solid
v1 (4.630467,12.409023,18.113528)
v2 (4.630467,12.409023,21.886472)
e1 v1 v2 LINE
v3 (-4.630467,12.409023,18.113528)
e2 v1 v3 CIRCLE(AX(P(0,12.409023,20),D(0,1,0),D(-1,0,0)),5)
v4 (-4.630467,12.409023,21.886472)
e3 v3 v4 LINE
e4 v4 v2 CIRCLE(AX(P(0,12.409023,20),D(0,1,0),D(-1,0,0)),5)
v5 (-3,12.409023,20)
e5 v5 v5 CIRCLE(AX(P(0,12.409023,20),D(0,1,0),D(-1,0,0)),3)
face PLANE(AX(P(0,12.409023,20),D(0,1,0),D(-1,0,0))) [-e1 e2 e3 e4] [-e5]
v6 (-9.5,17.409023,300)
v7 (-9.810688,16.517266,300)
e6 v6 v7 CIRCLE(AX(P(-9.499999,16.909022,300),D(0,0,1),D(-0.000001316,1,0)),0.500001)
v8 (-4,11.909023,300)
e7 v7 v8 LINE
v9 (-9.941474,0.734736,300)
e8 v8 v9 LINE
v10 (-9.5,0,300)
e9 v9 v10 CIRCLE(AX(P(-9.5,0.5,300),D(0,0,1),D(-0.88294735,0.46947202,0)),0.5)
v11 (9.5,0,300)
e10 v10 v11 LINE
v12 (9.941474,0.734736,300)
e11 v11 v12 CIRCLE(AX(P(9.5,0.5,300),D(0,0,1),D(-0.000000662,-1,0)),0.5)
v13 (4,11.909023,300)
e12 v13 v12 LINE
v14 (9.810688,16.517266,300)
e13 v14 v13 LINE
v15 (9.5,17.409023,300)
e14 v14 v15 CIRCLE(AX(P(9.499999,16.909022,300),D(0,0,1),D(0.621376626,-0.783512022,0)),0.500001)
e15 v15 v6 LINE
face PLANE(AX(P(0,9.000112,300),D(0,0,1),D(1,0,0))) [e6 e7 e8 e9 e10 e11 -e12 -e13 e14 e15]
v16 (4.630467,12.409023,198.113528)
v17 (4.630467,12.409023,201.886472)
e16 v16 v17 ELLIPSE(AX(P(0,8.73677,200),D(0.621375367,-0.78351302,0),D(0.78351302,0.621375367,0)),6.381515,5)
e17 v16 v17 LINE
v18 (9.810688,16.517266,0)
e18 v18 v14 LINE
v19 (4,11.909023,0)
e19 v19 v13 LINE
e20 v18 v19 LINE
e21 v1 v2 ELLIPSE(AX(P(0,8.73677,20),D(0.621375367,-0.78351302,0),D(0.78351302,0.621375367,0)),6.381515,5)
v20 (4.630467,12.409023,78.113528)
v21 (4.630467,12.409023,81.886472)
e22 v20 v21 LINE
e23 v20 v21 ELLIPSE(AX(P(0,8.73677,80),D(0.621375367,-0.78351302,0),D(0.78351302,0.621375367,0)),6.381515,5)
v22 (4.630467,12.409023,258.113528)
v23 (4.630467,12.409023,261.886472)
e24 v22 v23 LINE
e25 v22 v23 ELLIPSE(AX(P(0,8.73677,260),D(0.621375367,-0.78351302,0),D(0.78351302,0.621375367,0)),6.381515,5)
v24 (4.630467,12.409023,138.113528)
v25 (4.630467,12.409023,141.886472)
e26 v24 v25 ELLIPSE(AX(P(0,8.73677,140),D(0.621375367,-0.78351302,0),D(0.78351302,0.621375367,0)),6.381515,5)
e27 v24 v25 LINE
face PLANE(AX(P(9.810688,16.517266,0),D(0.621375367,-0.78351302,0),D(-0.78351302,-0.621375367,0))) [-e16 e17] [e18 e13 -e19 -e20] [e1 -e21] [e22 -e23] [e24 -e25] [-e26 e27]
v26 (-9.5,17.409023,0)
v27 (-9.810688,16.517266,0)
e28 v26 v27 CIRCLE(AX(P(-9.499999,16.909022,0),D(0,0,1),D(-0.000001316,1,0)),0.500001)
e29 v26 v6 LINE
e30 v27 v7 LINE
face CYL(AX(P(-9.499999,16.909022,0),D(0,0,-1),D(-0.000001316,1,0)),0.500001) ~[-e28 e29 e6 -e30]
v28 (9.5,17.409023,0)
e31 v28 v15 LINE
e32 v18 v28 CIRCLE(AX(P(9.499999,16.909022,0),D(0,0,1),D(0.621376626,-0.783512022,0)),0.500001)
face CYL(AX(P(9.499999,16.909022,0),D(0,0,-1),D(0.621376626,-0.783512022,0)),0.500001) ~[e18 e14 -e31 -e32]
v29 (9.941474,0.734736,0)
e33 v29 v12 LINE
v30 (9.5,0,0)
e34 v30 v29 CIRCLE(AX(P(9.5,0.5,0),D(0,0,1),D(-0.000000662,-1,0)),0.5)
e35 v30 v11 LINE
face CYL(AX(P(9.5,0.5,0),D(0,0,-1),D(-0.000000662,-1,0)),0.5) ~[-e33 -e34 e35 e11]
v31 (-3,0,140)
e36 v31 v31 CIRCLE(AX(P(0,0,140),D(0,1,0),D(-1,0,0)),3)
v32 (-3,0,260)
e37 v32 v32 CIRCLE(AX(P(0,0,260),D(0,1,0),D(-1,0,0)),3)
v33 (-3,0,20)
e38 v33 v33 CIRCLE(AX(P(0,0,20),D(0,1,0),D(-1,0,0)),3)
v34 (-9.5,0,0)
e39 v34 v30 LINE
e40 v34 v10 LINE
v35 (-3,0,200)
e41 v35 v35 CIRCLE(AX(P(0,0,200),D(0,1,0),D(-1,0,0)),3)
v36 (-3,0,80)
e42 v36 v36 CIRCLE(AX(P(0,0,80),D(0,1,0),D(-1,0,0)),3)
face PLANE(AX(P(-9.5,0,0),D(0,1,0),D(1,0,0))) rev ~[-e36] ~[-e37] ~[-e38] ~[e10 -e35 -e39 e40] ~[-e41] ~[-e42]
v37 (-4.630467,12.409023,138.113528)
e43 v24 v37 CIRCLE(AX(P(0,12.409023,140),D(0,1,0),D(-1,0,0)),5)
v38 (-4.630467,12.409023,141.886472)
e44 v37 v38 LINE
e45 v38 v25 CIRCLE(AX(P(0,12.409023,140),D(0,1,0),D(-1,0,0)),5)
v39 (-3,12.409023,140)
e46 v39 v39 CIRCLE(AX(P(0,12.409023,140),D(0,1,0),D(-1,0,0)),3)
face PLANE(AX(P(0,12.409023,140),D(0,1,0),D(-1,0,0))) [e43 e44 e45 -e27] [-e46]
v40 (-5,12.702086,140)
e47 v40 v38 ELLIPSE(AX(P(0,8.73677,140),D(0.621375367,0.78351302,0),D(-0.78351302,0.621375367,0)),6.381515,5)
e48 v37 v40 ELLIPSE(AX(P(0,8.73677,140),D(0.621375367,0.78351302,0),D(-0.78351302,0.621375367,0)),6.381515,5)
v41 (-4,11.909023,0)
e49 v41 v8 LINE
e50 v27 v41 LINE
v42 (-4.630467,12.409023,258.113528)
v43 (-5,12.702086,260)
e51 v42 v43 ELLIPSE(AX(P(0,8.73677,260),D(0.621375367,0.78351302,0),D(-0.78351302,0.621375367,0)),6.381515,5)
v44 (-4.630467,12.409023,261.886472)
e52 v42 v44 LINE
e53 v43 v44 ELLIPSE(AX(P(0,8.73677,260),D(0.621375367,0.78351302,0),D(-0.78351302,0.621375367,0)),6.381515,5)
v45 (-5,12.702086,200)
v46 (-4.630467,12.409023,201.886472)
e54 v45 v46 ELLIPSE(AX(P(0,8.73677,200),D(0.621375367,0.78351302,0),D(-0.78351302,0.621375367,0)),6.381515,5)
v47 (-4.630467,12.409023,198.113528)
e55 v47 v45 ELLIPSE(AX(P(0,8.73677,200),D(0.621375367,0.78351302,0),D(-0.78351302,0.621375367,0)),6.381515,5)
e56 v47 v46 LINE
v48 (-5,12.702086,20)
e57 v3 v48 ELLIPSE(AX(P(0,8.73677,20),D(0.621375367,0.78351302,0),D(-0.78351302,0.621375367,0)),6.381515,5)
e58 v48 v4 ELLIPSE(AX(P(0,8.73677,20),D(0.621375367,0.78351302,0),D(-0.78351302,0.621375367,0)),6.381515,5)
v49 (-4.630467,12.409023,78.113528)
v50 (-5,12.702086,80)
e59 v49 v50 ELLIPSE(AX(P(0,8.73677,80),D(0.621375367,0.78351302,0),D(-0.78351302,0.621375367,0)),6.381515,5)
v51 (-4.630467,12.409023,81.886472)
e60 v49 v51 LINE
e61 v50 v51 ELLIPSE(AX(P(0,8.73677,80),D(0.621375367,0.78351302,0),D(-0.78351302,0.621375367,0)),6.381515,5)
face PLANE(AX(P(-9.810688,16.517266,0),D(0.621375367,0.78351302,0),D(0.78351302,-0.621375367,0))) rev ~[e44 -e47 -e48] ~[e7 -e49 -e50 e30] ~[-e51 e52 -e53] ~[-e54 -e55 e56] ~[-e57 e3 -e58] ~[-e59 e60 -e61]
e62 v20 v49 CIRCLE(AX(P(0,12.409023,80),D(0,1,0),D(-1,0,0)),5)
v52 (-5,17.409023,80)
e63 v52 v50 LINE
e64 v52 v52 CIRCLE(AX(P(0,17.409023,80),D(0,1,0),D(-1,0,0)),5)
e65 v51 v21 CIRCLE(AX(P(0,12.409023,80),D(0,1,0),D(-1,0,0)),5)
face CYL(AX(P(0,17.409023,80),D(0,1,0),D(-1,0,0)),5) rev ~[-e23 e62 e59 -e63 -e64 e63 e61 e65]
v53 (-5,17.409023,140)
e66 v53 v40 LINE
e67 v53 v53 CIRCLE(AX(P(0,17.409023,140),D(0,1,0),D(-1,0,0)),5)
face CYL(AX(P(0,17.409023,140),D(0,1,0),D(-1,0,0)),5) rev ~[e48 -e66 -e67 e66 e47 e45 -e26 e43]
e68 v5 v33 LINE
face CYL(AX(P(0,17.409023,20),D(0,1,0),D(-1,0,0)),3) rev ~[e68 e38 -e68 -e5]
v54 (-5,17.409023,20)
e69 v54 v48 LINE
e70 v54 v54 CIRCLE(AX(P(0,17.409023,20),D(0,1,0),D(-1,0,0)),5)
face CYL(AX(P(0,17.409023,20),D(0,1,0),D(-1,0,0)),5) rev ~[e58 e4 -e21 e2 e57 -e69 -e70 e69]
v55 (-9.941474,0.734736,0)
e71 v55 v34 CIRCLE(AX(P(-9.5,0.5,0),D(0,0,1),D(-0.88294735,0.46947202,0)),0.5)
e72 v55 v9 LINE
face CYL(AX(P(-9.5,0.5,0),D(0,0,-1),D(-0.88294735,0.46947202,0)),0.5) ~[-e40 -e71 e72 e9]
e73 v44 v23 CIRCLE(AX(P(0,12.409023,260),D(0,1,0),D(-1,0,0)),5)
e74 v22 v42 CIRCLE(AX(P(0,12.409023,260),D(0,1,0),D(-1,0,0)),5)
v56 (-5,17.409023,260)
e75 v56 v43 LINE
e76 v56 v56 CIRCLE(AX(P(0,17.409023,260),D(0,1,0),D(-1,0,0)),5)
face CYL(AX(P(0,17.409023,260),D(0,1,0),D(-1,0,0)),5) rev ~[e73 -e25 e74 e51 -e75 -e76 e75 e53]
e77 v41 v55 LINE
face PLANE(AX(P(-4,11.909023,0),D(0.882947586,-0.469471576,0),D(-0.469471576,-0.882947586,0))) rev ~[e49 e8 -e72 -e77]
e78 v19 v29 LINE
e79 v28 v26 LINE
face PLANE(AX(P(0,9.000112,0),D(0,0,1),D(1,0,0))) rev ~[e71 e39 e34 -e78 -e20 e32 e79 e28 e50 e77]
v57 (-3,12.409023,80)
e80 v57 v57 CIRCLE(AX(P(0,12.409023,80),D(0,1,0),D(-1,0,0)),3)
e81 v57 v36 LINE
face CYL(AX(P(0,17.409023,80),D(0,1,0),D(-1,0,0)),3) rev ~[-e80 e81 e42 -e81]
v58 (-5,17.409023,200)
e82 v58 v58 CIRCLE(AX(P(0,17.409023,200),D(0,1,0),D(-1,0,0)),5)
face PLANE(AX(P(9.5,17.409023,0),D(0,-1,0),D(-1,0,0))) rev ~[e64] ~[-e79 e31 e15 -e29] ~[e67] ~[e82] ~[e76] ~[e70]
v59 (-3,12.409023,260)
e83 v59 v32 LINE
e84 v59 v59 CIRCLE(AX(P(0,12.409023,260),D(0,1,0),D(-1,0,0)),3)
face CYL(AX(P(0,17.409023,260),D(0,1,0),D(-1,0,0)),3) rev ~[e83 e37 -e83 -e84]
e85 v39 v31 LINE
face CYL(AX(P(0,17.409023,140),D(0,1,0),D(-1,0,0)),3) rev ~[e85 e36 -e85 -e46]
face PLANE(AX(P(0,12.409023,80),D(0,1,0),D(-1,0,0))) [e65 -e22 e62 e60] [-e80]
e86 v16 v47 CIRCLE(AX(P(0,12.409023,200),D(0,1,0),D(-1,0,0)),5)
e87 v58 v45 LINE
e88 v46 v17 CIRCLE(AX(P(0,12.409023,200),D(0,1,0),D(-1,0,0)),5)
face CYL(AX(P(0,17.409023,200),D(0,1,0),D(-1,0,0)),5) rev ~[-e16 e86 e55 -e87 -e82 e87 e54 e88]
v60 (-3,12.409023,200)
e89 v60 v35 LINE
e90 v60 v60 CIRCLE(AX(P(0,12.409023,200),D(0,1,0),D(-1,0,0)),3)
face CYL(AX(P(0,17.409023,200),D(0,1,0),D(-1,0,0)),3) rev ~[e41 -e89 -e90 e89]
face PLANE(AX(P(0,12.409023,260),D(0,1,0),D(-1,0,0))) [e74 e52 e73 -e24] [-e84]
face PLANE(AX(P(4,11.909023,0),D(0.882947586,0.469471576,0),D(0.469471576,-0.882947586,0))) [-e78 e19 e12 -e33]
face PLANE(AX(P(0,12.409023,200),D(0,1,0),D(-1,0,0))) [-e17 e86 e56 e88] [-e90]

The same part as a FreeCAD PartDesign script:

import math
import FreeCAD as App
import Part
import Sketcher
Q = App.Units.Quantity

doc = App.newDocument("Part")
body = doc.addObject("PartDesign::Body", "Body")

# Sketch on XY plane
sketch1 = body.newObject("Sketcher::SketchObject", "Sketch")
sketch1.AttachmentSupport = (doc.getObject("XY_Plane"), [""])
sketch1.MapMode = "FlatFace"
sketch1.addGeometry([
    Part.LineSegment(App.Vector(-9.5, 0, 0), App.Vector(9.5, 0, 0)),  # 0
    Part.ArcOfCircle(Part.Circle(App.Vector(9.5, 0.5, 0), App.Vector(0, 0, 1), 0.5), math.radians(-90.000038), math.radians(28.00003)),  # 1
    Part.LineSegment(App.Vector(9.941474, 0.734736, 0), App.Vector(4, 11.909023, 0)),  # 2
    Part.LineSegment(App.Vector(4, 11.909023, 0), App.Vector(9.810688, 16.517266, 0)),  # 3
    Part.ArcOfCircle(Part.Circle(App.Vector(9.499999, 16.909022, 0), App.Vector(0, 0, 1), 0.500001), math.radians(-51.583267), math.radians(89.999925)),  # 4
    Part.LineSegment(App.Vector(9.5, 17.409023, 0), App.Vector(-9.5, 17.409023, 0)),  # 5
    Part.ArcOfCircle(Part.Circle(App.Vector(-9.499999, 16.909022, 0), App.Vector(0, 0, 1), 0.500001), math.radians(90.000075), math.radians(231.583267)),  # 6
    Part.LineSegment(App.Vector(-9.810688, 16.517266, 0), App.Vector(-4, 11.909023, 0)),  # 7
    Part.LineSegment(App.Vector(-4, 11.909023, 0), App.Vector(-9.941474, 0.734736, 0)),  # 8
    Part.ArcOfCircle(Part.Circle(App.Vector(-9.5, 0.5, 0), App.Vector(0, 0, 1), 0.5), math.radians(151.99997), math.radians(270.000038)),  # 9
], False)
sketch1.addConstraint([
    Sketcher.Constraint("Tangent", 0, 2, 1, 1),
    Sketcher.Constraint("Tangent", 1, 2, 2, 1),
    Sketcher.Constraint("Coincident", 2, 2, 3, 1),
    Sketcher.Constraint("Tangent", 3, 2, 4, 1),
    Sketcher.Constraint("Tangent", 4, 2, 5, 1),
    Sketcher.Constraint("Tangent", 5, 2, 6, 1),
    Sketcher.Constraint("Tangent", 6, 2, 7, 1),
    Sketcher.Constraint("Coincident", 7, 2, 8, 1),
    Sketcher.Constraint("Tangent", 8, 2, 9, 1),
    Sketcher.Constraint("Tangent", 9, 2, 0, 1),
    Sketcher.Constraint("Horizontal", 0),
    Sketcher.Constraint("Horizontal", 5),
    Sketcher.Constraint("Equal", 1, 4),
    Sketcher.Constraint("Equal", 4, 6),
    Sketcher.Constraint("Equal", 6, 9),
    Sketcher.Constraint("Symmetric", 0, 2, 9, 2, -1, 1),
    Sketcher.Constraint("Symmetric", 3, 2, 6, 2, -2),
    Sketcher.Constraint("Horizontal", 2, 2, 7, 2),
    Sketcher.Constraint("Vertical", 1, 3, 4, 3),
    Sketcher.Constraint("Radius", 1, 0.5),
    Sketcher.Constraint("DistanceX", 0, 1, 0, 2, 19.0),
    Sketcher.Constraint("Angle", 2, Q("118.000001 deg")),
    Sketcher.Constraint("DistanceX", -1, 1, 2, 2, 4.0),
    Sketcher.Constraint("DistanceY", 2, 2, 4, 3, 4.999999),
])
pad1 = body.newObject("PartDesign::Pad", "Pad")
pad1.Profile = sketch1
pad1.Length = 300

# Sketch on XZ plane
sketch2 = body.newObject("Sketcher::SketchObject", "Sketch001")
sketch2.AttachmentSupport = (doc.getObject("XZ_Plane"), [""])
sketch2.MapMode = "FlatFace"
sketch2.AttachmentOffset = App.Placement(App.Vector(0, 0, -17.409023), App.Rotation())
sketch2.addGeometry([
    Part.Circle(App.Vector(0, 20, 0), App.Vector(0, 0, 1), 3),  # 0
    Part.Circle(App.Vector(0, 80, 0), App.Vector(0, 0, 1), 3),  # 1
    Part.Circle(App.Vector(0, 140, 0), App.Vector(0, 0, 1), 3),  # 2
    Part.Circle(App.Vector(0, 200, 0), App.Vector(0, 0, 1), 3),  # 3
    Part.Circle(App.Vector(0, 260, 0), App.Vector(0, 0, 1), 3),  # 4
], False)
sketch2.addConstraint([
    Sketcher.Constraint("Equal", 0, 1),
    Sketcher.Constraint("Equal", 1, 2),
    Sketcher.Constraint("Equal", 2, 3),
    Sketcher.Constraint("Equal", 3, 4),
    Sketcher.Constraint("PointOnObject", 0, 3, -2),
    Sketcher.Constraint("PointOnObject", 1, 3, -2),
    Sketcher.Constraint("PointOnObject", 2, 3, -2),
    Sketcher.Constraint("PointOnObject", 3, 3, -2),
    Sketcher.Constraint("PointOnObject", 4, 3, -2),
    Sketcher.Constraint("Diameter", 0, 6.0),
    Sketcher.Constraint("DistanceY", -1, 1, 0, 3, 20.0),
    Sketcher.Constraint("DistanceY", -1, 1, 1, 3, 80.0),
    Sketcher.Constraint("DistanceY", -1, 1, 2, 3, 140.0),
    Sketcher.Constraint("DistanceY", -1, 1, 3, 3, 200.0),
    Sketcher.Constraint("DistanceY", -1, 1, 4, 3, 260.0),
])
pocket1 = body.newObject("PartDesign::Pocket", "Pocket")
pocket1.Profile = sketch2
pocket1.Type = "ThroughAll"
pocket1.Reversed = True

# Sketch on XZ plane
sketch3 = body.newObject("Sketcher::SketchObject", "Sketch002")
sketch3.AttachmentSupport = (doc.getObject("XZ_Plane"), [""])
sketch3.MapMode = "FlatFace"
sketch3.AttachmentOffset = App.Placement(App.Vector(0, 0, -17.409023), App.Rotation())
sketch3.addGeometry([
    Part.Circle(App.Vector(0, 260, 0), App.Vector(0, 0, 1), 5),  # 0
    Part.Circle(App.Vector(0, 200, 0), App.Vector(0, 0, 1), 5),  # 1
    Part.Circle(App.Vector(0, 140, 0), App.Vector(0, 0, 1), 5),  # 2
    Part.Circle(App.Vector(0, 80, 0), App.Vector(0, 0, 1), 5),  # 3
    Part.Circle(App.Vector(0, 20, 0), App.Vector(0, 0, 1), 5),  # 4
], False)
sketch3.addConstraint([
    Sketcher.Constraint("Equal", 0, 1),
    Sketcher.Constraint("Equal", 1, 2),
    Sketcher.Constraint("Equal", 2, 3),
    Sketcher.Constraint("Equal", 3, 4),
    Sketcher.Constraint("PointOnObject", 0, 3, -2),
    Sketcher.Constraint("PointOnObject", 1, 3, -2),
    Sketcher.Constraint("PointOnObject", 2, 3, -2),
    Sketcher.Constraint("PointOnObject", 3, 3, -2),
    Sketcher.Constraint("PointOnObject", 4, 3, -2),
    Sketcher.Constraint("Diameter", 0, 10.0),
    Sketcher.Constraint("DistanceY", -1, 1, 0, 3, 260.0),
    Sketcher.Constraint("DistanceY", -1, 1, 1, 3, 200.0),
    Sketcher.Constraint("DistanceY", -1, 1, 2, 3, 140.0),
    Sketcher.Constraint("DistanceY", -1, 1, 3, 3, 80.0),
    Sketcher.Constraint("DistanceY", -1, 1, 4, 3, 20.0),
])
pocket2 = body.newObject("PartDesign::Pocket", "Pocket001")
pocket2.Profile = sketch3
pocket2.Length = 5
pocket2.Reversed = True

doc.recompute()
